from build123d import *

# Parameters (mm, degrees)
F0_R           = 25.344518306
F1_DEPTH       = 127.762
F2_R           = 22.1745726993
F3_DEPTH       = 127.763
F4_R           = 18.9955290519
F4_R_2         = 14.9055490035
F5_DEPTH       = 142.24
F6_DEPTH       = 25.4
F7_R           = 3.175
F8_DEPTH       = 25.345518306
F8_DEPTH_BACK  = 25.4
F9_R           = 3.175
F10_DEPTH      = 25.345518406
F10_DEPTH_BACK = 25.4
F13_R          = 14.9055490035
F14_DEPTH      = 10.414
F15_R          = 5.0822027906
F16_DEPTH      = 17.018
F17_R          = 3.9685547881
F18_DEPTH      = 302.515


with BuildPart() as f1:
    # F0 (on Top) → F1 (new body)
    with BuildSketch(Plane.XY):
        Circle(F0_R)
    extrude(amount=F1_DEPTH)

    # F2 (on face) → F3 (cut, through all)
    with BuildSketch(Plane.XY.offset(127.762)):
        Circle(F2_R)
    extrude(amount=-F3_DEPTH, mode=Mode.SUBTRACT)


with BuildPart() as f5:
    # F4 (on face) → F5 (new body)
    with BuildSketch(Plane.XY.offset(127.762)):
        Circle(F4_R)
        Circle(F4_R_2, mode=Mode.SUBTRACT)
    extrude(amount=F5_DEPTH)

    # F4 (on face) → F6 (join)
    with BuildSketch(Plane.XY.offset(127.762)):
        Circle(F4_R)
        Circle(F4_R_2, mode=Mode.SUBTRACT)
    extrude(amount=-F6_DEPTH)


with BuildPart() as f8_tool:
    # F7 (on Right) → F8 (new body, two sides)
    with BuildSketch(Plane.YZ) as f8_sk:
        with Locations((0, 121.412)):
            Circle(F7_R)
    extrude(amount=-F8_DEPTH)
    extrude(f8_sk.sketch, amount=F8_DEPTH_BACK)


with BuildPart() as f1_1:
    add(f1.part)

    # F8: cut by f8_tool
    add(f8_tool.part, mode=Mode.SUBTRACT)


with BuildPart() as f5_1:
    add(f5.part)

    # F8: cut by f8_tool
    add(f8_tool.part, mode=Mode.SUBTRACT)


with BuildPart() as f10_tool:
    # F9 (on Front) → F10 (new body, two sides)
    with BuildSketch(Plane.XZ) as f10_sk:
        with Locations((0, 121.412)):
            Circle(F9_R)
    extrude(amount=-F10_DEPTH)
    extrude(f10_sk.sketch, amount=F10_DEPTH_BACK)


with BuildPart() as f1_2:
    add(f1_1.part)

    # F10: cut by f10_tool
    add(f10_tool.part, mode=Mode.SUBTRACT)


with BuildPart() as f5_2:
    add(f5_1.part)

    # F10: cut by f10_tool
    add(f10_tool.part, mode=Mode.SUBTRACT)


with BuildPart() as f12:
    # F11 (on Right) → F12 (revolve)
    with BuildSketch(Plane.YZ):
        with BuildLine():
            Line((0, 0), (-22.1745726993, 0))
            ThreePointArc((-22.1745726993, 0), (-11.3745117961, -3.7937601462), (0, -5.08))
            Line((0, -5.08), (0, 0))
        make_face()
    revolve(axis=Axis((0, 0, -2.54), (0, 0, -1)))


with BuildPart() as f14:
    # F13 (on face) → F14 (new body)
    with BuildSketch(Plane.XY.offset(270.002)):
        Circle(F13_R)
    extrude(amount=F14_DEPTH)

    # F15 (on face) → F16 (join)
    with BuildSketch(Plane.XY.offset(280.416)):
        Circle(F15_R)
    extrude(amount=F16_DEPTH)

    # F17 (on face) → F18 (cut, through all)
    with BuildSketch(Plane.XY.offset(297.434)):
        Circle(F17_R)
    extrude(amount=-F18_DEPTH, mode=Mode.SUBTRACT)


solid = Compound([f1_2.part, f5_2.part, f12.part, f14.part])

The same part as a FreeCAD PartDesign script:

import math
import FreeCAD as App
import Part
import Sketcher

V = App.Vector
Q = App.Units.Quantity

doc = App.newDocument("Part")
params = doc.addObject("Spreadsheet::Sheet", "Params")
for row, (alias, value) in enumerate([
    ("pad1_length", "5.03 in"),
    ("pad2_length", "5.6 in"),
    ("pad3_length", "1 in"),
    ("sketch5_diameter", "0.25 in"),
    ("pad4_length", "25.345518 mm"),
    ("pad4_length2", "1 in"),
    ("sketch6_diameter", "0.25 in"),
    ("pad5_length", "25.345518 mm"),
    ("pad5_length2", "1 in"),
    ("sketch7_height", "0.2 in"),
    ("revolution_angle", "360 deg"),
    ("pad6_length", "0.41 in"),
    ("pad7_length", "0.67 in"),
], start=1):
    params.set(f"A{row}", alias)
    params.set(f"B{row}", "=" + value)
    params.setAlias(f"B{row}", alias)

body = doc.addObject("PartDesign::Body", "Body")

# Sketch on XY plane
sketch1 = body.newObject("Sketcher::SketchObject", "Sketch")
sketch1.AttachmentSupport = (doc.getObject("XY_Plane"), [""])
sketch1.MapMode = "FlatFace"
sketch1.addGeometry(Part.Circle(V(0, 0, 0), V(0, 0, 1), 25), False)
sketch1.addConstraint(Sketcher.Constraint("Coincident", 0, 3, -1, 1))
sketch1.addConstraint(Sketcher.Constraint("Diameter", 0, 50.689037))
pad1 = body.newObject("PartDesign::Pad", "Pad")
pad1.Profile = sketch1
pad1.setExpression("Length", "Params.pad1_length")

# Sketch on XY plane
sketch2 = body.newObject("Sketcher::SketchObject", "Sketch001")
sketch2.AttachmentSupport = (doc.getObject("XY_Plane"), [""])
sketch2.MapMode = "FlatFace"
sketch2.AttachmentOffset = App.Placement(V(0, 0, 5.03 * 25.4), App.Rotation())
sketch2.addGeometry(Part.Circle(V(0, 0, 0), V(0, 0, 1), 22), False)
sketch2.addConstraint(Sketcher.Constraint("Coincident", 0, 3, -1, 1))
sketch2.addConstraint(Sketcher.Constraint("Diameter", 0, 44.349145))
pocket1 = body.newObject("PartDesign::Pocket", "Pocket")
pocket1.Profile = sketch2
pocket1.Type = "ThroughAll"
body2 = doc.addObject("PartDesign::Body", "Body001")

# Sketch on XY plane
sketch3 = body2.newObject("Sketcher::SketchObject", "Sketch002")
sketch3.AttachmentSupport = (doc.getObject("XY_Plane001"), [""])
sketch3.MapMode = "FlatFace"
sketch3.AttachmentOffset = App.Placement(V(0, 0, 5.03 * 25.4), App.Rotation())
sketch3.addGeometry(Part.Circle(V(0, 0, 0), V(0, 0, 1), 19), False)
sketch3.addGeometry(Part.Circle(V(0, 0, 0), V(0, 0, 1), 15), False)
sketch3.addConstraint(Sketcher.Constraint("Coincident", 0, 3, -1, 1))
sketch3.addConstraint(Sketcher.Constraint("Coincident", 1, 3, -1, 1))
sketch3.addConstraint(Sketcher.Constraint("Diameter", 1, 29.811098))
sketch3.addConstraint(Sketcher.Constraint("Diameter", 0, 37.991058))
pad2 = body2.newObject("PartDesign::Pad", "Pad001")
pad2.Profile = sketch3
pad2.setExpression("Length", "Params.pad2_length")

# Sketch on XY plane
sketch4 = body2.newObject("Sketcher::SketchObject", "Sketch003")
sketch4.AttachmentSupport = (doc.getObject("XY_Plane001"), [""])
sketch4.MapMode = "FlatFace"
sketch4.AttachmentOffset = App.Placement(V(0, 0, 5.03 * 25.4), App.Rotation())
sketch4.addGeometry(Part.Circle(V(0, 0, 0), V(0, 0, 1), 19), False)
sketch4.addGeometry(Part.Circle(V(0, 0, 0), V(0, 0, 1), 15), False)
sketch4.addConstraint(Sketcher.Constraint("Coincident", 0, 3, -1, 1))
sketch4.addConstraint(Sketcher.Constraint("Coincident", 1, 3, -1, 1))
sketch4.addConstraint(Sketcher.Constraint("Diameter", 1, 29.811098))
sketch4.addConstraint(Sketcher.Constraint("Diameter", 0, 37.991058))
pad3 = body2.newObject("PartDesign::Pad", "Pad002")
pad3.Profile = sketch4
pad3.setExpression("Length", "Params.pad3_length")
pad3.Reversed = True
body3 = doc.addObject("PartDesign::Body", "Body002")

# Sketch on YZ plane
sketch5 = body3.newObject("Sketcher::SketchObject", "Sketch004")
sketch5.AttachmentSupport = (doc.getObject("YZ_Plane002"), [""])
sketch5.MapMode = "FlatFace"
sketch5.addGeometry(Part.Circle(V(0, 121.4, 0), V(0, 0, 1), 3.2), False)
sketch5.addConstraint(Sketcher.Constraint("PointOnObject", 0, 3, -2))
sketch5.addConstraint(Sketcher.Constraint("Diameter", 0, Q("0.25 in")))
sketch5.addConstraint(Sketcher.Constraint("DistanceY", -1, 1, 0, 3, Q("4.78 in")))
sketch5.setExpression("Constraints[1]", "Params.sketch5_diameter")
pad4 = body3.newObject("PartDesign::Pad", "Pad003")
pad4.Profile = sketch5
pad4.Type = "TwoLengths"
pad4.setExpression("Length", "Params.pad4_length")
pad4.setExpression("Length2", "Params.pad4_length2")
pad4.Reversed = True
doc.recompute()

body4 = doc.addObject("PartDesign::Body", "Body003")
body4.BaseFeature = body3
boolean = body.newObject("PartDesign::Boolean", "Boolean")
boolean.Type = "Cut"
boolean.addObjects([body4])
doc.recompute()

boolean2 = body2.newObject("PartDesign::Boolean", "Boolean001")
boolean2.Type = "Cut"
boolean2.addObjects([body3])
body5 = doc.addObject("PartDesign::Body", "Body004")

# Sketch on XZ plane
sketch6 = body5.newObject("Sketcher::SketchObject", "Sketch005")
sketch6.AttachmentSupport = (doc.getObject("XZ_Plane004"), [""])
sketch6.MapMode = "FlatFace"
sketch6.addGeometry(Part.Circle(V(0, 121.4, 0), V(0, 0, 1), 3.2), False)
sketch6.addConstraint(Sketcher.Constraint("PointOnObject", 0, 3, -2))
sketch6.addConstraint(Sketcher.Constraint("Diameter", 0, Q("0.25 in")))
sketch6.addConstraint(Sketcher.Constraint("DistanceY", -1, 1, 0, 3, Q("4.78 in")))
sketch6.setExpression("Constraints[1]", "Params.sketch6_diameter")
pad5 = body5.newObject("PartDesign::Pad", "Pad004")
pad5.Profile = sketch6
pad5.Type = "TwoLengths"
pad5.setExpression("Length", "Params.pad5_length")
pad5.setExpression("Length2", "Params.pad5_length2")
pad5.Reversed = True
doc.recompute()

body6 = doc.addObject("PartDesign::Body", "Body005")
body6.BaseFeature = body5
boolean3 = body.newObject("PartDesign::Boolean", "Boolean002")
boolean3.Type = "Cut"
boolean3.addObjects([body6])
doc.recompute()

boolean4 = body2.newObject("PartDesign::Boolean", "Boolean003")
boolean4.Type = "Cut"
boolean4.addObjects([body5])
body7 = doc.addObject("PartDesign::Body", "Body006")

# Sketch on YZ plane
sketch7 = body7.newObject("Sketcher::SketchObject", "Sketch006")
sketch7.AttachmentSupport = (doc.getObject("YZ_Plane006"), [""])
sketch7.MapMode = "FlatFace"
sketch7.addGeometry(Part.LineSegment(V(0, 0, 0), V(-22, 0, 0)), False)
sketch7.addGeometry(Part.ArcOfCircle(Part.Circle(V(0, 46, 0), V(0, 0, 1), 51), math.radians(-116), math.radians(-90)), False)
sketch7.addGeometry(Part.LineSegment(V(0, -5, 0), V(0, 0, 0)), False)
sketch7.addConstraint(Sketcher.Constraint("Coincident", 0, 2, 1, 1))
sketch7.addConstraint(Sketcher.Constraint("Coincident", 1, 2, 2, 1))
sketch7.addConstraint(Sketcher.Constraint("Coincident", 2, 2, 0, 1))
sketch7.addConstraint(Sketcher.Constraint("Horizontal", 0))
sketch7.addConstraint(Sketcher.Constraint("Vertical", 2))
sketch7.addConstraint(Sketcher.Constraint("Coincident", 2, 2, -1, 1))
sketch7.addConstraint(Sketcher.Constraint("PointOnObject", 1, 3, -2))
sketch7.addConstraint(Sketcher.Constraint("DistanceY", 2, 1, 2, 2, Q("0.2 in")))
sketch7.addConstraint(Sketcher.Constraint("Radius", 1, 50.936818))
sketch7.setExpression("Constraints[7]", "Params.sketch7_height")
revolution = body7.newObject("PartDesign::Revolution", "Revolution")
revolution.Profile = sketch7
revolution.ReferenceAxis = (sketch7, ["V_Axis"])
revolution.setExpression("Angle", "Params.revolution_angle")
body8 = doc.addObject("PartDesign::Body", "Body007")

# Sketch on XY plane
sketch8 = body8.newObject("Sketcher::SketchObject", "Sketch007")
sketch8.AttachmentSupport = (doc.getObject("XY_Plane007"), [""])
sketch8.MapMode = "FlatFace"
sketch8.AttachmentOffset = App.Placement(V(0, 0, 10.63 * 25.4), App.Rotation())
sketch8.addGeometry(Part.Circle(V(0, 0, 0), V(0, 0, 1), 15), False)
sketch8.addConstraint(Sketcher.Constraint("Coincident", 0, 3, -1, 1))
sketch8.addConstraint(Sketcher.Constraint("Diameter", 0, 29.811098))
pad6 = body8.newObject("PartDesign::Pad", "Pad005")
pad6.Profile = sketch8
pad6.setExpression("Length", "Params.pad6_length")

# Sketch on XY plane
sketch9 = body8.newObject("Sketcher::SketchObject", "Sketch008")
sketch9.AttachmentSupport = (doc.getObject("XY_Plane007"), [""])
sketch9.MapMode = "FlatFace"
sketch9.AttachmentOffset = App.Placement(V(0, 0, 11.04 * 25.4), App.Rotation())
sketch9.addGeometry(Part.Circle(V(0, 0, 0), V(0, 0, 1), 5), False)
sketch9.addConstraint(Sketcher.Constraint("Coincident", 0, 3, -1, 1))
sketch9.addConstraint(Sketcher.Constraint("Diameter", 0, 10.164406))
pad7 = body8.newObject("PartDesign::Pad", "Pad006")
pad7.Profile = sketch9
pad7.setExpression("Length", "Params.pad7_length")

# Sketch on XY plane
sketch10 = body8.newObject("Sketcher::SketchObject", "Sketch009")
sketch10.AttachmentSupport = (doc.getObject("XY_Plane007"), [""])
sketch10.MapMode = "FlatFace"
sketch10.AttachmentOffset = App.Placement(V(0, 0, 11.71 * 25.4), App.Rotation())
sketch10.addGeometry(Part.Circle(V(0, 0, 0), V(0, 0, 1), 4), False)
sketch10.addConstraint(Sketcher.Constraint("Coincident", 0, 3, -1, 1))
sketch10.addConstraint(Sketcher.Constraint("Diameter", 0, 7.93711))
pocket2 = body8.newObject("PartDesign::Pocket", "Pocket001")
pocket2.Profile = sketch10
pocket2.Type = "ThroughAll"

doc.recompute()
